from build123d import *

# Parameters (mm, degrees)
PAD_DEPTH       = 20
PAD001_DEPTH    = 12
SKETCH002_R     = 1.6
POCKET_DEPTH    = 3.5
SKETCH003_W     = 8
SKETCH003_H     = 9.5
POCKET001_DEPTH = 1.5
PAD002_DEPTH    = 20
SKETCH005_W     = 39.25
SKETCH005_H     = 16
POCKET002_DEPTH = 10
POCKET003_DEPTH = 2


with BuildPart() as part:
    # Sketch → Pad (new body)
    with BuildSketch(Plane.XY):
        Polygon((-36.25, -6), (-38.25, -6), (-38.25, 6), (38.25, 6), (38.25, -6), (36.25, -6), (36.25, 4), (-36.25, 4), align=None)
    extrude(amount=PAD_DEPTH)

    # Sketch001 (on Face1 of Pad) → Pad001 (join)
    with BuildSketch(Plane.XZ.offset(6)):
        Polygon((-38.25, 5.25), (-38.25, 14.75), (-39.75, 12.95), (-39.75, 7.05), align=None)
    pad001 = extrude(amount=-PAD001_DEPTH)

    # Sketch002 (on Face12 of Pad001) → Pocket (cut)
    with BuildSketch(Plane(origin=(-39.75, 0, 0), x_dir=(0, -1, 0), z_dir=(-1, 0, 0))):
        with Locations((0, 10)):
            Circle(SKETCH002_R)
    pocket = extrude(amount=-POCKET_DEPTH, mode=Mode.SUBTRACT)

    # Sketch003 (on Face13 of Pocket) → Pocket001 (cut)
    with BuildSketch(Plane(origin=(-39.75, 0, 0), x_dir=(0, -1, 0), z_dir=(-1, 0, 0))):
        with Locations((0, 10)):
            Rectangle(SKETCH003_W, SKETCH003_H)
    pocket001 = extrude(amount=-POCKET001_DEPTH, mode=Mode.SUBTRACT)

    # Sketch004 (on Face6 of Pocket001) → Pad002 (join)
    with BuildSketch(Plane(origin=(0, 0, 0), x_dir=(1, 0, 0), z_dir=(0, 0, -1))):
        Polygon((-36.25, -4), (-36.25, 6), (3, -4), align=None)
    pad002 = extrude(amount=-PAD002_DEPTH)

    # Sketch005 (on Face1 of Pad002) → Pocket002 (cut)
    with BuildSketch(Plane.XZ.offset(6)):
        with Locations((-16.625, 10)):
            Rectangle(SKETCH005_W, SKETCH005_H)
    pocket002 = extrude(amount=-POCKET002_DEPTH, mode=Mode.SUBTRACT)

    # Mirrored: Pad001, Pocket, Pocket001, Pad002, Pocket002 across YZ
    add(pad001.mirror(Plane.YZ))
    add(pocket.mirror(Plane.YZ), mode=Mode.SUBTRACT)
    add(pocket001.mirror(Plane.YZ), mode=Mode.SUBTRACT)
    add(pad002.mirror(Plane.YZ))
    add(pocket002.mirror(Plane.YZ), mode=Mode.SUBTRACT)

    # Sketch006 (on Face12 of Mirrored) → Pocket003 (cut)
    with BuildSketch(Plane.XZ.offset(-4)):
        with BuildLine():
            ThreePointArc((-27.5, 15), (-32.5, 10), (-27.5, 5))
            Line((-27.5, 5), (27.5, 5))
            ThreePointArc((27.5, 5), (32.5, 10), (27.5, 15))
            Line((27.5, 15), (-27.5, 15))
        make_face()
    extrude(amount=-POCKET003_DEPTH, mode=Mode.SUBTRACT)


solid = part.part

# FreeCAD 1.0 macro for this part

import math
import FreeCAD as App
import Part
import Sketcher

V = App.Vector
Q = App.Units.Quantity


def add_polygon(sketch, points):
    """Adds a closed chain of lines whose ends are joined by coincident constraints."""
    first, n = sketch.GeometryCount, len(points)
    for a, b in zip(points, points[1:] + points[:1]):
        sketch.addGeometry(Part.LineSegment(App.Vector(*a, 0), App.Vector(*b, 0)), False)
    for i in range(n):
        sketch.addConstraint(Sketcher.Constraint("Coincident", first + i, 2, first + (i + 1) % n, 1))

doc = App.newDocument("Part")
body = doc.addObject("PartDesign::Body", "Body")

sketch1 = body.newObject("Sketcher::SketchObject", "Sketch")
sketch1.AttachmentSupport = (doc.getObject("XY_Plane"), [""])
sketch1.MapMode = "FlatFace"
add_polygon(sketch1, [(-38.25, -6), (-36.25, -6), (-36.25, 4), (36.25, 4), (36.25, -6), (38.25, -6), (38.25, 6), (-38.25, 6)])
sketch1.addConstraint([
    Sketcher.Constraint("Horizontal", 0),
    Sketcher.Constraint("Vertical", 1),
    Sketcher.Constraint("Horizontal", 2),
    Sketcher.Constraint("Vertical", 3),
    Sketcher.Constraint("Horizontal", 4),
    Sketcher.Constraint("Vertical", 5),
    Sketcher.Constraint("Horizontal", 6),
    Sketcher.Constraint("Vertical", 7),
    Sketcher.Constraint("Symmetric", 4, 2, 6, 2, -1, 1),
    Sketcher.Constraint("Symmetric", 0, 2, 3, 2, -2),
    Sketcher.Constraint("DistanceX", 0, 1, 0, 2, Q("2 mm")),
    Sketcher.Constraint("DistanceY", 1, 1, 1, 2, Q("10 mm")),
    Sketcher.Constraint("DistanceY", 5, 1, 5, 2, Q("12 mm")),
    Sketcher.Constraint("DistanceX", 2, 1, 2, 2, Q("72.5 mm")),
])
pad1 = body.newObject("PartDesign::Pad", "Pad")
pad1.Profile = sketch1
pad1.Length = 20

sketch2 = body.newObject("Sketcher::SketchObject", "Sketch001")
sketch2.AttachmentSupport = (doc.getObject("XZ_Plane"), [""])
sketch2.MapMode = "FlatFace"
sketch2.AttachmentOffset = App.Placement(V(0, 0, 6), App.Rotation())
add_polygon(sketch2, [(-38.25, 5.25), (-38.25, 14.75), (-39.75, 12.95), (-39.75, 7.05)])
sketch2.addConstraint([
    Sketcher.Constraint("Vertical", 0),
    Sketcher.Constraint("Vertical", 2),
    Sketcher.Constraint("Equal", 1, 3),
    Sketcher.Constraint("DistanceY", 0, 1, 0, 2, Q("9.5 mm")),
    Sketcher.Constraint("DistanceY", 2, 2, 2, 1, Q("5.9 mm")),
    Sketcher.Constraint("DistanceX", 1, 2, 0, 2, Q("1.5 mm")),
    Sketcher.Constraint("DistanceX", 0, 2, -1, 1, Q("38.25 mm")),
    Sketcher.Constraint("DistanceY", -1, 1, 0, 2, Q("14.75 mm")),
])
pad2 = body.newObject("PartDesign::Pad", "Pad001")
pad2.Profile = sketch2
pad2.Length = 12
pad2.Reversed = True

sketch3 = body.newObject("Sketcher::SketchObject", "Sketch002")
sketch3.AttachmentSupport = (doc.getObject("YZ_Plane"), [""])
sketch3.MapMode = "FlatFace"
sketch3.AttachmentOffset = App.Placement(V(0, 0, -39.75), App.Rotation())
sketch3.addGeometry(Part.Circle(V(0, 10, 0), V(0, 0, 1), 1.6), False)
sketch3.addConstraint([
    Sketcher.Constraint("PointOnObject", 0, 3, -2),
    Sketcher.Constraint("Diameter", 0, Q("3.2 mm")),
    Sketcher.Constraint("DistanceY", -1, 1, 0, 3, Q("10 mm")),
])
pocket1 = body.newObject("PartDesign::Pocket", "Pocket")
pocket1.Profile = sketch3
pocket1.Length = 3.5
pocket1.Reversed = True

sketch4 = body.newObject("Sketcher::SketchObject", "Sketch003")
sketch4.AttachmentSupport = (doc.getObject("YZ_Plane"), [""])
sketch4.MapMode = "FlatFace"
sketch4.AttachmentOffset = App.Placement(V(0, 0, -39.75), App.Rotation())
add_polygon(sketch4, [(4, 14.75), (4, 5.25), (-4, 5.25), (-4, 14.75)])
sketch4.addConstraint([
    Sketcher.Constraint("Vertical", 0),
    Sketcher.Constraint("Horizontal", 1),
    Sketcher.Constraint("Vertical", 2),
    Sketcher.Constraint("Horizontal", 3),
    Sketcher.Constraint("DistanceX", 1, 2, 1, 1, Q("8 mm")),
    Sketcher.Constraint("DistanceY", 0, 2, 0, 1, Q("9.5 mm")),
    Sketcher.Constraint("DistanceX", -1, 1, 0, 2, Q("4 mm")),
    Sketcher.Constraint("DistanceY", -1, 1, 0, 2, Q("5.25 mm")),
])
pocket2 = body.newObject("PartDesign::Pocket", "Pocket001")
pocket2.Profile = sketch4
pocket2.Length = 1.5
pocket2.Reversed = True

sketch5 = body.newObject("Sketcher::SketchObject", "Sketch004")
sketch5.AttachmentSupport = (doc.getObject("XY_Plane"), [""])
sketch5.MapMode = "FlatFace"
add_polygon(sketch5, [(-36.25, -6), (-36.25, 4), (3, 4)])
sketch5.addConstraint([
    Sketcher.Constraint("Vertical", 0),
    Sketcher.Constraint("Horizontal", 1),
    Sketcher.Constraint("DistanceY", 0, 1, 0, 2, Q("10 mm")),
    Sketcher.Constraint("DistanceY", -1, 1, 0, 2, Q("4 mm")),
    Sketcher.Constraint("DistanceX", -1, 1, 1, 2, Q("3 mm")),
    Sketcher.Constraint("DistanceX", 1, 1, 1, 2, Q("39.25 mm")),
])
pad3 = body.newObject("PartDesign::Pad", "Pad002")
pad3.Profile = sketch5
pad3.Length = 20

sketch6 = body.newObject("Sketcher::SketchObject", "Sketch005")
sketch6.AttachmentSupport = (doc.getObject("XZ_Plane"), [""])
sketch6.MapMode = "FlatFace"
sketch6.AttachmentOffset = App.Placement(V(0, 0, 6), App.Rotation())
add_polygon(sketch6, [(-36.25, 18), (-36.25, 2), (3, 2), (3, 18)])
sketch6.addConstraint([
    Sketcher.Constraint("Vertical", 0),
    Sketcher.Constraint("Horizontal", 1),
    Sketcher.Constraint("Vertical", 2),
    Sketcher.Constraint("Horizontal", 3),
    Sketcher.Constraint("DistanceY", 0, 2, 0, 1, Q("16 mm")),
    Sketcher.Constraint("DistanceY", -1, 1, 0, 2, Q("2 mm")),
    Sketcher.Constraint("DistanceX", -1, 1, 1, 2, Q("3 mm")),
    Sketcher.Constraint("DistanceX", 1, 1, 1, 2, Q("39.25 mm")),
])
pocket3 = body.newObject("PartDesign::Pocket", "Pocket002")
pocket3.Profile = sketch6
pocket3.Length = 10
doc.recompute()

mirrored = body.newObject("PartDesign::Mirrored", "Mirrored")
mirrored.Originals = [pad2, pocket1, pocket2, pad3, pocket3]
mirrored.MirrorPlane = (doc.getObject("YZ_Plane"), [""])
body.Tip = mirrored

sketch7 = body.newObject("Sketcher::SketchObject", "Sketch006")
sketch7.AttachmentSupport = (doc.getObject("XZ_Plane"), [""])
sketch7.MapMode = "FlatFace"
sketch7.AttachmentOffset = App.Placement(V(0, 0, -4), App.Rotation())
sketch7.addGeometry([
    Part.ArcOfCircle(Part.Circle(V(-27.5, 10, 0), V(0, 0, 1), 5), math.radians(90), math.radians(270)),
    Part.LineSegment(V(-27.5, 5, 0), V(27.5, 5, 0)),
    Part.ArcOfCircle(Part.Circle(V(27.5, 10, 0), V(0, 0, 1), 5), math.radians(-90), math.radians(90)),
    Part.LineSegment(V(27.5, 15, 0), V(-27.5, 15, 0)),
], False)
sketch7.addConstraint([
    Sketcher.Constraint("Tangent", 0, 2, 1, 1),
    Sketcher.Constraint("Tangent", 1, 2, 2, 1),
    Sketcher.Constraint("Tangent", 2, 2, 3, 1),
    Sketcher.Constraint("Tangent", 3, 2, 0, 1),
    Sketcher.Constraint("Horizontal", 1),
    Sketcher.Constraint("Horizontal", 3),
    Sketcher.Constraint("Radius", 0, Q("5 mm")),
    Sketcher.Constraint("DistanceX", 1, 1, 1, 2, Q("55 mm")),
    Sketcher.Constraint("DistanceY", -1, 1, 0, 3, Q("10 mm")),
    Sketcher.Constraint("DistanceX", 0, 3, -1, 1, Q("27.5 mm")),
])
pocket4 = body.newObject("PartDesign::Pocket", "Pocket003")
pocket4.Profile = sketch7
pocket4.Length = 2

doc.recompute()
